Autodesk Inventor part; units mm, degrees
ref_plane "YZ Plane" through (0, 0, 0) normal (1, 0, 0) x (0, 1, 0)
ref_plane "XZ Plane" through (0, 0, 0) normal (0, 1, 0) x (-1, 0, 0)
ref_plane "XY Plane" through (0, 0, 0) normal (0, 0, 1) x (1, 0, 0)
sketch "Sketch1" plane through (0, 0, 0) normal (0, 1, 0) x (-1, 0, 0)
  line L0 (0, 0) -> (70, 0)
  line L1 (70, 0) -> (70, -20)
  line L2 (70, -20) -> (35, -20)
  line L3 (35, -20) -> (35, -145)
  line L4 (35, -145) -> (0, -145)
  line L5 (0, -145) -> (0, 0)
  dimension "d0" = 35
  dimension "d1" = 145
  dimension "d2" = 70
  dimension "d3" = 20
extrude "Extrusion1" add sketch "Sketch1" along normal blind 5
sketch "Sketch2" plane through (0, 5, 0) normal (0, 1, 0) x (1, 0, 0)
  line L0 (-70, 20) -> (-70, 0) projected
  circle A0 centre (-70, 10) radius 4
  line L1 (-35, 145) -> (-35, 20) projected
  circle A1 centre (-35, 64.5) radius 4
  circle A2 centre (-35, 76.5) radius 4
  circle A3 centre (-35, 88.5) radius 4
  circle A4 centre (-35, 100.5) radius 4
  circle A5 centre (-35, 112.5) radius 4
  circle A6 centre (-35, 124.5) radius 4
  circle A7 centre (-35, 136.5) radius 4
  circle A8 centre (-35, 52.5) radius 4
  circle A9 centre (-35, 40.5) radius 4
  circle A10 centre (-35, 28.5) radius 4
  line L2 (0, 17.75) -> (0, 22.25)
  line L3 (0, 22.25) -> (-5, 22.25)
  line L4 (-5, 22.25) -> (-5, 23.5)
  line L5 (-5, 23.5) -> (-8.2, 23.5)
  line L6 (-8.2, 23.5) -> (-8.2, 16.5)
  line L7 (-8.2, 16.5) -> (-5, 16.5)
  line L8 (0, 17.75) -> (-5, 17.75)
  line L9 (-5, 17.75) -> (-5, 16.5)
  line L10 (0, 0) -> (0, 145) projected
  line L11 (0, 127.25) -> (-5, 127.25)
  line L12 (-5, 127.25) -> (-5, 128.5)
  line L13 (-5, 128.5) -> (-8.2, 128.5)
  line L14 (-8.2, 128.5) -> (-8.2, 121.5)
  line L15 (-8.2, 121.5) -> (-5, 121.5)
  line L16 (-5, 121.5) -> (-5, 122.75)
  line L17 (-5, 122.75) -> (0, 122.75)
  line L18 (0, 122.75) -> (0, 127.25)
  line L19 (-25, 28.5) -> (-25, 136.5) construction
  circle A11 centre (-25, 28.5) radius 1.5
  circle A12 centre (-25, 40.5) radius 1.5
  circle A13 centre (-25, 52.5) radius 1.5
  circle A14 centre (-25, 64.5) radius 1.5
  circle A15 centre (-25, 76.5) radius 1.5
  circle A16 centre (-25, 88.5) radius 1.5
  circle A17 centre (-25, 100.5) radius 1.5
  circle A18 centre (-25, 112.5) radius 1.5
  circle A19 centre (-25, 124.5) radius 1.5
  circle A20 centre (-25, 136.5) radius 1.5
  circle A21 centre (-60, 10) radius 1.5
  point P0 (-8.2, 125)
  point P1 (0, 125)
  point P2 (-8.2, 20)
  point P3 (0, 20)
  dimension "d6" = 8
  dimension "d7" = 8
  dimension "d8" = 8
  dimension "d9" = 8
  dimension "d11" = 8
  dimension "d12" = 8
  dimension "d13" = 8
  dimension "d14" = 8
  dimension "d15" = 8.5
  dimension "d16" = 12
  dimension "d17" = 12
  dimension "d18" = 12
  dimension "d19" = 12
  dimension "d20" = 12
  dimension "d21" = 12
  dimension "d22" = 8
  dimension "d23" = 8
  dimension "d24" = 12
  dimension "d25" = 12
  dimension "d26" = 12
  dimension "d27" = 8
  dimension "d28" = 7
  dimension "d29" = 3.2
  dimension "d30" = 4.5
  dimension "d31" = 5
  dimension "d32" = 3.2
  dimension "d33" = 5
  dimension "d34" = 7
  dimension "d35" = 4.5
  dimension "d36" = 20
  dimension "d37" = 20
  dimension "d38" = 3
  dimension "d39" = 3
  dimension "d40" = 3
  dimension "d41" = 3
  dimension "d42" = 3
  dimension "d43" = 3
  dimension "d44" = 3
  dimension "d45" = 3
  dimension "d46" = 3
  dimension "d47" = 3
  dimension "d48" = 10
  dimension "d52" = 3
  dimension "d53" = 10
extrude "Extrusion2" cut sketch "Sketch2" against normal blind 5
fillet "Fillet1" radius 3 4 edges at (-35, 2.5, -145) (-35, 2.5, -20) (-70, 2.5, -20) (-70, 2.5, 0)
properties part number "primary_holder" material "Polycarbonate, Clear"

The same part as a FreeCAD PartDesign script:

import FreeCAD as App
import Part
import Sketcher


def edges_at(feature, points):
    """Names of the edges that pass closest to the given points."""
    edges = feature.Shape.Edges
    near = lambda p: min(range(len(edges)), key=lambda i: edges[i].distToShape(Part.Vertex(*p))[0])
    return sorted({f"Edge{near(p) + 1}" for p in points})

doc = App.newDocument("Part")
params = doc.addObject("Spreadsheet::Sheet", "Params")
for row, (alias, value) in enumerate([
    ("sketch1_width", "70 mm"),
    ("sketch1_height", "145 mm"),
    ("sketch1_height2", "20 mm"),
    ("pad1_length", "5 mm"),
    ("sketch2_diameter", "8 mm"),
    ("sketch2_diameter2", "3 mm"),
    ("sketch2_width", "5 mm"),
    ("sketch2_height", "7 mm"),
    ("sketch2_width2", "3.2 mm"),
    ("pocket1_length", "5 mm"),
    ("fillet_radius", "3 mm"),
], start=1):
    params.set(f"A{row}", alias)
    params.set(f"B{row}", "=" + value)
    params.setAlias(f"B{row}", alias)

body = doc.addObject("PartDesign::Body", "Body")

# Sketch on XZ plane
sketch1 = body.newObject("Sketcher::SketchObject", "Sketch")
sketch1.AttachmentSupport = (doc.getObject("XZ_Plane"), [""])
sketch1.MapMode = "FlatFace"
sketch1.addGeometry([
    Part.LineSegment(App.Vector(-70, 0, 0), App.Vector(0, 0, 0)),  # 0
    Part.LineSegment(App.Vector(0, 0, 0), App.Vector(0, -145, 0)),  # 1
    Part.LineSegment(App.Vector(0, -145, 0), App.Vector(-35, -145, 0)),  # 2
    Part.LineSegment(App.Vector(-35, -145, 0), App.Vector(-35, -20, 0)),  # 3
    Part.LineSegment(App.Vector(-35, -20, 0), App.Vector(-70, -20, 0)),  # 4
    Part.LineSegment(App.Vector(-70, -20, 0), App.Vector(-70, 0, 0)),  # 5
], False)
sketch1.addConstraint([
    Sketcher.Constraint("Coincident", 0, 2, 1, 1),
    Sketcher.Constraint("Coincident", 1, 2, 2, 1),
    Sketcher.Constraint("Coincident", 2, 2, 3, 1),
    Sketcher.Constraint("Coincident", 3, 2, 4, 1),
    Sketcher.Constraint("Coincident", 4, 2, 5, 1),
    Sketcher.Constraint("Coincident", 5, 2, 0, 1),
    Sketcher.Constraint("Horizontal", 0),
    Sketcher.Constraint("Vertical", 1),
    Sketcher.Constraint("Horizontal", 2),
    Sketcher.Constraint("Vertical", 3),
    Sketcher.Constraint("Horizontal", 4),
    Sketcher.Constraint("Vertical", 5),
    Sketcher.Constraint("Coincident", 0, 2, -1, 1),
    Sketcher.Constraint("Equal", 2, 4),
    Sketcher.Constraint("DistanceX", 0, 1, 0, 2, 70.0),
    Sketcher.Constraint("DistanceY", 1, 2, 1, 1, 145.0),
    Sketcher.Constraint("DistanceY", 5, 1, 5, 2, 20.0),
])
sketch1.setExpression("Constraints[14]", "Params.sketch1_width")
sketch1.setExpression("Constraints[15]", "Params.sketch1_height")
sketch1.setExpression("Constraints[16]", "Params.sketch1_height2")
pad1 = body.newObject("PartDesign::Pad", "Pad")
pad1.Profile = sketch1
pad1.setExpression("Length", "Params.pad1_length")
pad1.Reversed = True

# Sketch on XZ plane
sketch2 = body.newObject("Sketcher::SketchObject", "Sketch001")
sketch2.AttachmentSupport = (doc.getObject("XZ_Plane"), [""])
sketch2.MapMode = "FlatFace"
sketch2.AttachmentOffset = App.Placement(App.Vector(0, 0, -5), App.Rotation())
sketch2.addGeometry([
    Part.Circle(App.Vector(-70, -10, 0), App.Vector(0, 0, 1), 4),  # 0
    Part.Circle(App.Vector(-35, -136.5, 0), App.Vector(0, 0, 1), 4),  # 1
    Part.Circle(App.Vector(-35, -28.5, 0), App.Vector(0, 0, 1), 4),  # 2
    Part.Circle(App.Vector(-35, -40.5, 0), App.Vector(0, 0, 1), 4),  # 3
    Part.Circle(App.Vector(-35, -52.5, 0), App.Vector(0, 0, 1), 4),  # 4
    Part.Circle(App.Vector(-35, -64.5, 0), App.Vector(0, 0, 1), 4),  # 5
    Part.Circle(App.Vector(-35, -76.5, 0), App.Vector(0, 0, 1), 4),  # 6
    Part.Circle(App.Vector(-35, -88.5, 0), App.Vector(0, 0, 1), 4),  # 7
    Part.Circle(App.Vector(-35, -100.5, 0), App.Vector(0, 0, 1), 4),  # 8
    Part.Circle(App.Vector(-35, -112.5, 0), App.Vector(0, 0, 1), 4),  # 9
    Part.Circle(App.Vector(-35, -124.5, 0), App.Vector(0, 0, 1), 4),  # 10
    Part.LineSegment(App.Vector(-5, -17.8, 0), App.Vector(0, -17.8, 0)),  # 11
    Part.LineSegment(App.Vector(0, -17.8, 0), App.Vector(0, -22.2, 0)),  # 12
    Part.LineSegment(App.Vector(0, -22.2, 0), App.Vector(-5, -22.2, 0)),  # 13
    Part.LineSegment(App.Vector(-5, -22.2, 0), App.Vector(-5, -23.5, 0)),  # 14
    Part.LineSegment(App.Vector(-5, -23.5, 0), App.Vector(-8.2, -23.5, 0)),  # 15
    Part.LineSegment(App.Vector(-8.2, -23.5, 0), App.Vector(-8.2, -16.5, 0)),  # 16
    Part.LineSegment(App.Vector(-8.2, -16.5, 0), App.Vector(-5, -16.5, 0)),  # 17
    Part.LineSegment(App.Vector(-5, -16.5, 0), App.Vector(-5, -17.8, 0)),  # 18
    Part.LineSegment(App.Vector(-5, -122.8, 0), App.Vector(0, -122.8, 0)),  # 19
    Part.LineSegment(App.Vector(0, -122.8, 0), App.Vector(0, -127.2, 0)),  # 20
    Part.LineSegment(App.Vector(0, -127.2, 0), App.Vector(-5, -127.2, 0)),  # 21
    Part.LineSegment(App.Vector(-5, -127.2, 0), App.Vector(-5, -128.5, 0)),  # 22
    Part.LineSegment(App.Vector(-5, -128.5, 0), App.Vector(-8.2, -128.5, 0)),  # 23
    Part.LineSegment(App.Vector(-8.2, -128.5, 0), App.Vector(-8.2, -121.5, 0)),  # 24
    Part.LineSegment(App.Vector(-8.2, -121.5, 0), App.Vector(-5, -121.5, 0)),  # 25
    Part.LineSegment(App.Vector(-5, -121.5, 0), App.Vector(-5, -122.8, 0)),  # 26
    Part.Circle(App.Vector(-25, -28.5, 0), App.Vector(0, 0, 1), 1.5),  # 27
    Part.Circle(App.Vector(-25, -40.5, 0), App.Vector(0, 0, 1), 1.5),  # 28
    Part.Circle(App.Vector(-25, -52.5, 0), App.Vector(0, 0, 1), 1.5),  # 29
    Part.Circle(App.Vector(-25, -64.5, 0), App.Vector(0, 0, 1), 1.5),  # 30
    Part.Circle(App.Vector(-25, -76.5, 0), App.Vector(0, 0, 1), 1.5),  # 31
    Part.Circle(App.Vector(-25, -88.5, 0), App.Vector(0, 0, 1), 1.5),  # 32
    Part.Circle(App.Vector(-25, -100.5, 0), App.Vector(0, 0, 1), 1.5),  # 33
    Part.Circle(App.Vector(-25, -112.5, 0), App.Vector(0, 0, 1), 1.5),  # 34
    Part.Circle(App.Vector(-25, -124.5, 0), App.Vector(0, 0, 1), 1.5),  # 35
    Part.Circle(App.Vector(-25, -136.5, 0), App.Vector(0, 0, 1), 1.5),  # 36
    Part.Circle(App.Vector(-60, -10, 0), App.Vector(0, 0, 1), 1.5),  # 37
], False)
sketch2.addConstraint([
    Sketcher.Constraint("Coincident", 11, 2, 12, 1),
    Sketcher.Constraint("Coincident", 12, 2, 13, 1),
    Sketcher.Constraint("Coincident", 13, 2, 14, 1),
    Sketcher.Constraint("Coincident", 14, 2, 15, 1),
    Sketcher.Constraint("Coincident", 15, 2, 16, 1),
    Sketcher.Constraint("Coincident", 16, 2, 17, 1),
    Sketcher.Constraint("Coincident", 17, 2, 18, 1),
    Sketcher.Constraint("Coincident", 18, 2, 11, 1),
    Sketcher.Constraint("Coincident", 19, 2, 20, 1),
    Sketcher.Constraint("Coincident", 20, 2, 21, 1),
    Sketcher.Constraint("Coincident", 21, 2, 22, 1),
    Sketcher.Constraint("Coincident", 22, 2, 23, 1),
    Sketcher.Constraint("Coincident", 23, 2, 24, 1),
    Sketcher.Constraint("Coincident", 24, 2, 25, 1),
    Sketcher.Constraint("Coincident", 25, 2, 26, 1),
    Sketcher.Constraint("Coincident", 26, 2, 19, 1),
    Sketcher.Constraint("Horizontal", 11),
    Sketcher.Constraint("Vertical", 12),
    Sketcher.Constraint("Horizontal", 13),
    Sketcher.Constraint("Vertical", 14),
    Sketcher.Constraint("Horizontal", 15),
    Sketcher.Constraint("Vertical", 16),
    Sketcher.Constraint("Horizontal", 17),
    Sketcher.Constraint("Vertical", 18),
    Sketcher.Constraint("Horizontal", 19),
    Sketcher.Constraint("Vertical", 20),
    Sketcher.Constraint("Horizontal", 21),
    Sketcher.Constraint("Vertical", 22),
    Sketcher.Constraint("Horizontal", 23),
    Sketcher.Constraint("Vertical", 24),
    Sketcher.Constraint("Horizontal", 25),
    Sketcher.Constraint("Vertical", 26),
    Sketcher.Constraint("Equal", 0, 1),
    Sketcher.Constraint("Equal", 1, 2),
    Sketcher.Constraint("Equal", 2, 3),
    Sketcher.Constraint("Equal", 3, 4),
    Sketcher.Constraint("Equal", 4, 5),
    Sketcher.Constraint("Equal", 5, 6),
    Sketcher.Constraint("Equal", 6, 7),
    Sketcher.Constraint("Equal", 7, 8),
    Sketcher.Constraint("Equal", 8, 9),
    Sketcher.Constraint("Equal", 9, 10),
    Sketcher.Constraint("Equal", 27, 28),
    Sketcher.Constraint("Equal", 28, 29),
    Sketcher.Constraint("Equal", 29, 30),
    Sketcher.Constraint("Equal", 30, 31),
    Sketcher.Constraint("Equal", 31, 32),
    Sketcher.Constraint("Equal", 32, 33),
    Sketcher.Constraint("Equal", 33, 34),
    Sketcher.Constraint("Equal", 34, 35),
    Sketcher.Constraint("Equal", 35, 36),
    Sketcher.Constraint("Equal", 36, 37),
    Sketcher.Constraint("PointOnObject", 11, 2, -2),
    Sketcher.Constraint("PointOnObject", 19, 2, -2),
    Sketcher.Constraint("Horizontal", 2, 3, 27, 3),
    Sketcher.Constraint("Horizontal", 3, 3, 28, 3),
    Sketcher.Constraint("Horizontal", 4, 3, 29, 3),
    Sketcher.Constraint("Horizontal", 5, 3, 30, 3),
    Sketcher.Constraint("Horizontal", 6, 3, 31, 3),
    Sketcher.Constraint("Horizontal", 7, 3, 32, 3),
    Sketcher.Constraint("Horizontal", 8, 3, 33, 3),
    Sketcher.Constraint("Horizontal", 9, 3, 34, 3),
    Sketcher.Constraint("Horizontal", 10, 3, 35, 3),
    Sketcher.Constraint("Horizontal", 1, 3, 36, 3),
    Sketcher.Constraint("Horizontal", 0, 3, 37, 3),
    Sketcher.Constraint("Vertical", 1, 3, 2, 3),
    Sketcher.Constraint("Vertical", 2, 3, 3, 3),
    Sketcher.Constraint("Vertical", 3, 3, 4, 3),
    Sketcher.Constraint("Vertical", 4, 3, 5, 3),
    Sketcher.Constraint("Vertical", 5, 3, 6, 3),
    Sketcher.Constraint("Vertical", 6, 3, 7, 3),
    Sketcher.Constraint("Vertical", 7, 3, 8, 3),
    Sketcher.Constraint("Vertical", 8, 3, 9, 3),
    Sketcher.Constraint("Vertical", 9, 3, 10, 3),
    Sketcher.Constraint("Vertical", 27, 3, 28, 3),
    Sketcher.Constraint("Vertical", 28, 3, 29, 3),
    Sketcher.Constraint("Vertical", 29, 3, 30, 3),
    Sketcher.Constraint("Vertical", 30, 3, 31, 3),
    Sketcher.Constraint("Vertical", 31, 3, 32, 3),
    Sketcher.Constraint("Vertical", 32, 3, 33, 3),
    Sketcher.Constraint("Vertical", 33, 3, 34, 3),
    Sketcher.Constraint("Vertical", 34, 3, 35, 3),
    Sketcher.Constraint("Vertical", 35, 3, 36, 3),
    Sketcher.Constraint("Vertical", 14, 2, 17, 2),
    Sketcher.Constraint("Vertical", 18, 2, 21, 2),
    Sketcher.Constraint("Vertical", 16, 2, 23, 2),
    Sketcher.Constraint("Vertical", 22, 2, 25, 2),
    Sketcher.Constraint("Equal", 14, 18),
    Sketcher.Constraint("Equal", 12, 20),
    Sketcher.Constraint("Equal", 18, 22),
    Sketcher.Constraint("Equal", 16, 24),
    Sketcher.Constraint("Diameter", 0, 8.0),
    Sketcher.Constraint("Diameter", 27, 3.0),
    Sketcher.Constraint("DistanceX", 11, 1, 11, 2, 5.0),
    Sketcher.Constraint("DistanceY", 16, 1, 16, 2, 7.0),
    Sketcher.Constraint("DistanceX", 15, 2, 15, 1, 3.2),
    Sketcher.Constraint("DistanceY", 12, 2, 12, 1, 4.5),
    Sketcher.Constraint("DistanceY", 0, 3, -1, 1, 10.0),
    Sketcher.Constraint("DistanceY", 3, 3, 2, 3, 12.0),
    Sketcher.Constraint("DistanceY", 4, 3, 3, 3, 12.0),
    Sketcher.Constraint("DistanceY", 5, 3, 4, 3, 12.0),
    Sketcher.Constraint("DistanceY", 6, 3, 5, 3, 12.0),
    Sketcher.Constraint("DistanceY", 7, 3, 6, 3, 12.0),
    Sketcher.Constraint("DistanceY", 8, 3, 7, 3, 12.0),
    Sketcher.Constraint("DistanceY", 9, 3, 8, 3, 12.0),
    Sketcher.Constraint("DistanceY", 1, 3, 10, 3, 12.0),
    Sketcher.Constraint("DistanceY", 10, 3, 9, 3, 12.0),
    Sketcher.Constraint("DistanceX", 2, 3, 27, 3, 10.0),
    Sketcher.Constraint("DistanceX", 0, 3, 37, 3, 10.0),
    Sketcher.Constraint("DistanceX", 27, 3, 13, 2, 20.0),
    Sketcher.Constraint("DistanceY", 27, 3, 14, 2, 5.0),
    Sketcher.Constraint("DistanceY", 36, 3, 22, 2, 8.0),
    Sketcher.Constraint("DistanceX", 0, 3, -1, 1, 70.0),
    Sketcher.Constraint("DistanceY", 1, 3, -1, 1, 136.5),
])
sketch2.setExpression("Constraints[91]", "Params.sketch2_diameter")
sketch2.setExpression("Constraints[92]", "Params.sketch2_diameter2")
sketch2.setExpression("Constraints[93]", "Params.sketch2_width")
sketch2.setExpression("Constraints[94]", "Params.sketch2_height")
sketch2.setExpression("Constraints[95]", "Params.sketch2_width2")
pocket1 = body.newObject("PartDesign::Pocket", "Pocket")
pocket1.Profile = sketch2
pocket1.setExpression("Length", "Params.pocket1_length")
pocket1.Reversed = True
doc.recompute()

fillet = body.newObject("PartDesign::Fillet", "Fillet")
fillet.Base = (pocket1, edges_at(pocket1, [
    (-35, 2.5, -145),
    (-35, 2.5, -20),
    (-70, 2.5, -20),
    (-70, 2.5, 0),
]))
fillet.setExpression("Radius", "Params.fillet_radius")

doc.recompute()
